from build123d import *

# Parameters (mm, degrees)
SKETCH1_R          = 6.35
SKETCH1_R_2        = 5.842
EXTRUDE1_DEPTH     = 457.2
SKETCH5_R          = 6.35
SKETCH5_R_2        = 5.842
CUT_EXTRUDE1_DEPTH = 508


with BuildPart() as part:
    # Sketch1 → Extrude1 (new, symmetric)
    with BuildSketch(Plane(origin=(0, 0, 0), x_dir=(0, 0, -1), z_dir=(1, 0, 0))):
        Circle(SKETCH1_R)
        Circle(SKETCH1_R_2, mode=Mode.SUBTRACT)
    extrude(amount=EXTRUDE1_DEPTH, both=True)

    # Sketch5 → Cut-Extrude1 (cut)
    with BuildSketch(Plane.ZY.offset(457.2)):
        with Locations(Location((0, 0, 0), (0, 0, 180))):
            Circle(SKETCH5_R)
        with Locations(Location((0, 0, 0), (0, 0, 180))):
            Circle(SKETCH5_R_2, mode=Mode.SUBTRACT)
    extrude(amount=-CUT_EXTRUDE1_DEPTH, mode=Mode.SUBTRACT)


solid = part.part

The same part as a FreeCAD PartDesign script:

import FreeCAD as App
import Part
import Sketcher
from FreeCAD import Vector
Q = App.Units.Quantity

doc = App.newDocument("Part")
body = doc.addObject("PartDesign::Body", "Body")

# Sketch on YZ plane
sketch1 = doc.addObject("Sketcher::SketchObject", "Sketch")
body.addObject(sketch1)
sketch1.AttachmentSupport = (doc.YZ_Plane, [""])
sketch1.MapMode = "FlatFace"
sketch1.addGeometry([
    Part.Circle(Vector(0, 0, 0), Vector(0, 0, 1), 6),
    Part.Circle(Vector(0, 0, 0), Vector(0, 0, 1), 6),
], False)
sketch1.addConstraint([
    Sketcher.Constraint("Coincident", 0, 3, -1, 1),
    Sketcher.Constraint("Coincident", 1, 3, -1, 1),
    Sketcher.Constraint("Diameter", 0, Q("0.5 in")),
    Sketcher.Constraint("Diameter", 1, Q("0.46 in")),
])
pad1 = doc.addObject("PartDesign::Pad", "Pad")
body.addObject(pad1)
pad1.Profile = sketch1
pad1.Length = Q("36 in")
pad1.Midplane = True

# Sketch on YZ plane
sketch2 = doc.addObject("Sketcher::SketchObject", "Sketch001")
body.addObject(sketch2)
sketch2.AttachmentSupport = (doc.YZ_Plane, [""])
sketch2.MapMode = "FlatFace"
sketch2.AttachmentOffset = App.Placement(Vector(0, 0, -18 * 25.4), App.Rotation())
sketch2.addGeometry([
    Part.Circle(Vector(0, 0, 0), Vector(0, 0, 1), 6),
    Part.Circle(Vector(0, 0, 0), Vector(0, 0, 1), 6),
], False)
sketch2.addConstraint([
    Sketcher.Constraint("Coincident", 0, 3, -1, 1),
    Sketcher.Constraint("Coincident", 1, 3, -1, 1),
    Sketcher.Constraint("Diameter", 0, Q("0.5 in")),
    Sketcher.Constraint("Diameter", 1, Q("0.46 in")),
])
pocket1 = doc.addObject("PartDesign::Pocket", "Pocket")
body.addObject(pocket1)
pocket1.Profile = sketch2
pocket1.Length = Q("20 in")
pocket1.Reversed = True

doc.recompute()
